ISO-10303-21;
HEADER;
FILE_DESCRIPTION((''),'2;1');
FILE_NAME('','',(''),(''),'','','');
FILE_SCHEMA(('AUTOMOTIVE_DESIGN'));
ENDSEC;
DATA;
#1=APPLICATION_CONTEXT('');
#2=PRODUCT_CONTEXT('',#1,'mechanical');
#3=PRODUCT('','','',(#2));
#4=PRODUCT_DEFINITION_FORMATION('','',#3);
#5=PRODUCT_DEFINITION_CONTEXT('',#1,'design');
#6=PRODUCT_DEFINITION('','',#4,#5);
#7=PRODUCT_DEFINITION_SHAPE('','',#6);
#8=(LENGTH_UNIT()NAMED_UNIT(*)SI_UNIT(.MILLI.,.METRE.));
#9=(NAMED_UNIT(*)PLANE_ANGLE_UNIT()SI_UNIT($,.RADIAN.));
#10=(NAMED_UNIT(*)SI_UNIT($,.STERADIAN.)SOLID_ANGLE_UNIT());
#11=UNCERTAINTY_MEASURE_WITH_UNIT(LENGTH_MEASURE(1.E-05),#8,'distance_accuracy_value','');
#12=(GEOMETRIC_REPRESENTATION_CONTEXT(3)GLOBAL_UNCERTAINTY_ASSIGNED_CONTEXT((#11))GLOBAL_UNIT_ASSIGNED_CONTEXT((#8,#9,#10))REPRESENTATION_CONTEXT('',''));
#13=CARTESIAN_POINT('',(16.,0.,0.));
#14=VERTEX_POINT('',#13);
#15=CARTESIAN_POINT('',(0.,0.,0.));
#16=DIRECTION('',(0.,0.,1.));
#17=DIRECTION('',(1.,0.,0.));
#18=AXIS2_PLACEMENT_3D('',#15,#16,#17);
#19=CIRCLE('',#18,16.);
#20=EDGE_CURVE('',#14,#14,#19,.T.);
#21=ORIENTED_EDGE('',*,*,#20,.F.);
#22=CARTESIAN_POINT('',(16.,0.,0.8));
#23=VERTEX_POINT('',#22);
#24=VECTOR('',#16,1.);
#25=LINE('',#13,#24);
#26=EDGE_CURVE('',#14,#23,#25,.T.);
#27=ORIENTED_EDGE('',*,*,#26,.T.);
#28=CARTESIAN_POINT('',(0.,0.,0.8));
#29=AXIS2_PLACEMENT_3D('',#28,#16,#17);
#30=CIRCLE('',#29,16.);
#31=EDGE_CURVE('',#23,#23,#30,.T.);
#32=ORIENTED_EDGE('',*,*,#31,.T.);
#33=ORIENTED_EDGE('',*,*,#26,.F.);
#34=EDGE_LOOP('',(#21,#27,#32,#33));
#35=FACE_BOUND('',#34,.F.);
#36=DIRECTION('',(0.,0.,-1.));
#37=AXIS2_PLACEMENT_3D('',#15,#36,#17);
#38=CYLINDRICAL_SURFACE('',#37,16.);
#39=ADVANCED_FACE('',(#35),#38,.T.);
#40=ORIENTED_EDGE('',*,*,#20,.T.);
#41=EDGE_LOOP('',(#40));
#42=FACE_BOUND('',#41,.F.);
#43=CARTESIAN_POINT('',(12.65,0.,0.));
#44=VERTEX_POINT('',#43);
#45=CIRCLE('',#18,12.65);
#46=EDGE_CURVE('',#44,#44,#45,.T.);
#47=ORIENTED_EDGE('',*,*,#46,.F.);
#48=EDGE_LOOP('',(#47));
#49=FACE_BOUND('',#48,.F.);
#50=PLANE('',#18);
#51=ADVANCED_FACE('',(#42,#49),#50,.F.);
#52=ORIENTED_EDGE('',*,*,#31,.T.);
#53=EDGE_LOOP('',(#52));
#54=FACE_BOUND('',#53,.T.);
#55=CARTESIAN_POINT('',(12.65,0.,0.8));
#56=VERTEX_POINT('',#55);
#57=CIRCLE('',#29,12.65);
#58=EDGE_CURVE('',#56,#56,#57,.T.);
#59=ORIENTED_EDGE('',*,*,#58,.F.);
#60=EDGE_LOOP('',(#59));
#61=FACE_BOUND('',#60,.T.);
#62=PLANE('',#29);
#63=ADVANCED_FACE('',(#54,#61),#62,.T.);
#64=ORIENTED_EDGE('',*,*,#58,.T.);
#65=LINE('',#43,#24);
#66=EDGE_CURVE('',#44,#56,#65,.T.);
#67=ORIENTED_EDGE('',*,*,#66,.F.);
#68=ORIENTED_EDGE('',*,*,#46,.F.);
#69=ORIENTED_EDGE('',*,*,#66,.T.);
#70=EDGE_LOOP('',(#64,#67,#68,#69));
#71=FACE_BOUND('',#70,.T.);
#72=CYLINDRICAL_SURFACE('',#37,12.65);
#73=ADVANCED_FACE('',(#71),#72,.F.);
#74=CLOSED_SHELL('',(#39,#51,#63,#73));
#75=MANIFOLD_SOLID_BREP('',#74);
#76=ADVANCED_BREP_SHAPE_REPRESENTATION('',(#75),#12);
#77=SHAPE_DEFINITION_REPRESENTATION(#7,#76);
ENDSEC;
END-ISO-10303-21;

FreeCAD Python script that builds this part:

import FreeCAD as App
import Part
import Sketcher

V = App.Vector

doc = App.newDocument("Part")
body = doc.addObject("PartDesign::Body", "Body")

sketch1 = doc.addObject("Sketcher::SketchObject", "Sketch")
body.addObject(sketch1)
sketch1.AttachmentSupport = (doc.XY_Plane, [""])
sketch1.MapMode = "FlatFace"
sketch1.addGeometry([
    Part.Circle(V(0, 0, 0), V(0, 0, 1), 16),
    Part.Circle(V(0, 0, 0), V(0, 0, 1), 13),
], False)
sketch1.addConstraint([
    Sketcher.Constraint("Coincident", 0, 3, -1, 1),
    Sketcher.Constraint("Coincident", 1, 3, -1, 1),
    Sketcher.Constraint("Diameter", 0, 32.0),
    Sketcher.Constraint("Diameter", 1, 25.3),
])
pad1 = doc.addObject("PartDesign::Pad", "Pad")
body.addObject(pad1)
pad1.Profile = sketch1
pad1.Length = 0.8

doc.recompute()
